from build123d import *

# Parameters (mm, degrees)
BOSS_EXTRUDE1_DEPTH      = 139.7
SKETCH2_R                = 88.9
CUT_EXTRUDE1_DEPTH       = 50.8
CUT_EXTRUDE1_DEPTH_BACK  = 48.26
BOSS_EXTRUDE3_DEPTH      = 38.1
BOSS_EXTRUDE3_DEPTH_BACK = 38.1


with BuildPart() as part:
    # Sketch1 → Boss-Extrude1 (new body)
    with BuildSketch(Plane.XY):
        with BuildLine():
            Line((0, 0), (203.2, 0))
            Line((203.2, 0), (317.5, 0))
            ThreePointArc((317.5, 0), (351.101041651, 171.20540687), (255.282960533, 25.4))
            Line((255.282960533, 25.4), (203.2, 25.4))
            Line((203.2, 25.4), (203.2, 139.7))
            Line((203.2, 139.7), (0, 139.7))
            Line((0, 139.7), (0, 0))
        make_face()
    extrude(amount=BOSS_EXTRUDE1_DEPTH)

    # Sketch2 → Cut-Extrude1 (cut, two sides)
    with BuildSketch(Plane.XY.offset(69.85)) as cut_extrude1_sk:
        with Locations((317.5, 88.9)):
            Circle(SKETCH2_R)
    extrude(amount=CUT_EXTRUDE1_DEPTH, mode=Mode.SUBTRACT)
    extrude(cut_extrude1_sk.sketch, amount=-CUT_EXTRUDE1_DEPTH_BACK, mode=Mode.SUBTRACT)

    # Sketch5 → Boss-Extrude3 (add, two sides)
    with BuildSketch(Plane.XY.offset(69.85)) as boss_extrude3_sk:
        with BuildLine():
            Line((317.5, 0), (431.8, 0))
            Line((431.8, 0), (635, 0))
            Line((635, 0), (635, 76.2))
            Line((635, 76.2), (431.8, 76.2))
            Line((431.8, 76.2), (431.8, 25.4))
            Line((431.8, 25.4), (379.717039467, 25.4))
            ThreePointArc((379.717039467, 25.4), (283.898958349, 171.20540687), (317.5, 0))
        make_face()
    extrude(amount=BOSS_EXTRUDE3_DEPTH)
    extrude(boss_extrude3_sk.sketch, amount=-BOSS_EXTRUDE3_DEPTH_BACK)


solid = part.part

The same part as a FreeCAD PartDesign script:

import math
import FreeCAD as App
import Part
import Sketcher

V = App.Vector
Q = App.Units.Quantity

doc = App.newDocument("Part")
body = doc.addObject("PartDesign::Body", "Body")

sketch1 = body.newObject("Sketcher::SketchObject", "Sketch")
sketch1.AttachmentSupport = (doc.getObject("XY_Plane"), [""])
sketch1.MapMode = "FlatFace"
sketch1.addGeometry([
    Part.LineSegment(V(0, 0, 0), V(317.5, 0, 0)),
    Part.ArcOfCircle(Part.Circle(V(317.5, 88.9, 0), V(0, 0, 1), 88.9), math.radians(-90), math.radians(225.584691)),
    Part.LineSegment(V(255.282961, 25.4, 0), V(203.2, 25.4, 0)),
    Part.LineSegment(V(203.2, 25.4, 0), V(203.2, 139.7, 0)),
    Part.LineSegment(V(203.2, 139.7, 0), V(0, 139.7, 0)),
    Part.LineSegment(V(0, 139.7, 0), V(0, 0, 0)),
], False)
sketch1.addConstraint([
    Sketcher.Constraint("Tangent", 0, 2, 1, 1),
    Sketcher.Constraint("Coincident", 1, 2, 2, 1),
    Sketcher.Constraint("Coincident", 2, 2, 3, 1),
    Sketcher.Constraint("Coincident", 3, 2, 4, 1),
    Sketcher.Constraint("Coincident", 4, 2, 5, 1),
    Sketcher.Constraint("Coincident", 5, 2, 0, 1),
    Sketcher.Constraint("Horizontal", 0),
    Sketcher.Constraint("Horizontal", 2),
    Sketcher.Constraint("Vertical", 3),
    Sketcher.Constraint("Horizontal", 4),
    Sketcher.Constraint("Vertical", 5),
    Sketcher.Constraint("Coincident", 5, 2, -1, 1),
    Sketcher.Constraint("Radius", 1, Q("3.5 in")),
    Sketcher.Constraint("DistanceX", 4, 2, 4, 1, Q("8 in")),
    Sketcher.Constraint("DistanceX", 0, 1, 0, 2, Q("12.5 in")),
    Sketcher.Constraint("DistanceY", 3, 1, 3, 2, Q("4.5 in")),
    Sketcher.Constraint("DistanceY", 5, 2, 5, 1, Q("5.5 in")),
])
pad1 = body.newObject("PartDesign::Pad", "Pad")
pad1.Profile = sketch1
pad1.Length = Q("5.5 in")

sketch2 = body.newObject("Sketcher::SketchObject", "Sketch001")
sketch2.AttachmentSupport = (doc.getObject("XY_Plane"), [""])
sketch2.MapMode = "FlatFace"
sketch2.AttachmentOffset = App.Placement(V(0, 0, 2.75 * 25.4), App.Rotation())
sketch2.addGeometry(Part.Circle(V(317.5, 88.9, 0), V(0, 0, 1), 88.9), False)
sketch2.addConstraint([
    Sketcher.Constraint("Diameter", 0, Q("7 in")),
    Sketcher.Constraint("DistanceX", -1, 1, 0, 3, Q("12.5 in")),
    Sketcher.Constraint("DistanceY", -1, 1, 0, 3, Q("3.5 in")),
])
pocket1 = body.newObject("PartDesign::Pocket", "Pocket")
pocket1.Profile = sketch2
pocket1.Type = "TwoLengths"
pocket1.Length = Q("2 in")
pocket1.Length2 = Q("1.9 in")
pocket1.Reversed = True

sketch3 = body.newObject("Sketcher::SketchObject", "Sketch002")
sketch3.AttachmentSupport = (doc.getObject("XY_Plane"), [""])
sketch3.MapMode = "FlatFace"
sketch3.AttachmentOffset = App.Placement(V(0, 0, 2.75 * 25.4), App.Rotation())
sketch3.addGeometry([
    Part.LineSegment(V(317.5, 0, 0), V(635, 0, 0)),
    Part.LineSegment(V(635, 0, 0), V(635, 76.2, 0)),
    Part.LineSegment(V(635, 76.2, 0), V(431.8, 76.2, 0)),
    Part.LineSegment(V(431.8, 76.2, 0), V(431.8, 25.4, 0)),
    Part.LineSegment(V(431.8, 25.4, 0), V(379.717039, 25.4, 0)),
    Part.ArcOfCircle(Part.Circle(V(317.5, 88.9, 0), V(0, 0, 1), 88.9), math.radians(-45.584691), math.radians(270)),
], False)
sketch3.addConstraint([
    Sketcher.Constraint("Coincident", 0, 2, 1, 1),
    Sketcher.Constraint("Coincident", 1, 2, 2, 1),
    Sketcher.Constraint("Coincident", 2, 2, 3, 1),
    Sketcher.Constraint("Coincident", 3, 2, 4, 1),
    Sketcher.Constraint("Coincident", 4, 2, 5, 1),
    Sketcher.Constraint("Tangent", 5, 2, 0, 1),
    Sketcher.Constraint("Horizontal", 0),
    Sketcher.Constraint("Vertical", 1),
    Sketcher.Constraint("Horizontal", 2),
    Sketcher.Constraint("Vertical", 3),
    Sketcher.Constraint("Horizontal", 4),
    Sketcher.Constraint("PointOnObject", 0, 2, -1),
    Sketcher.Constraint("Radius", 5, Q("3.5 in")),
    Sketcher.Constraint("DistanceX", 2, 2, 2, 1, Q("8 in")),
    Sketcher.Constraint("DistanceY", 1, 1, 1, 2, Q("3 in")),
    Sketcher.Constraint("DistanceY", 3, 2, 3, 1, Q("2 in")),
    Sketcher.Constraint("DistanceX", 0, 1, 0, 2, Q("12.5 in")),
    Sketcher.Constraint("DistanceX", -1, 1, 0, 2, Q("25 in")),
])
pad2 = body.newObject("PartDesign::Pad", "Pad001")
pad2.Profile = sketch3
pad2.Type = "TwoLengths"
pad2.Length = Q("1.5 in")
pad2.Length2 = Q("1.5 in")

doc.recompute()
